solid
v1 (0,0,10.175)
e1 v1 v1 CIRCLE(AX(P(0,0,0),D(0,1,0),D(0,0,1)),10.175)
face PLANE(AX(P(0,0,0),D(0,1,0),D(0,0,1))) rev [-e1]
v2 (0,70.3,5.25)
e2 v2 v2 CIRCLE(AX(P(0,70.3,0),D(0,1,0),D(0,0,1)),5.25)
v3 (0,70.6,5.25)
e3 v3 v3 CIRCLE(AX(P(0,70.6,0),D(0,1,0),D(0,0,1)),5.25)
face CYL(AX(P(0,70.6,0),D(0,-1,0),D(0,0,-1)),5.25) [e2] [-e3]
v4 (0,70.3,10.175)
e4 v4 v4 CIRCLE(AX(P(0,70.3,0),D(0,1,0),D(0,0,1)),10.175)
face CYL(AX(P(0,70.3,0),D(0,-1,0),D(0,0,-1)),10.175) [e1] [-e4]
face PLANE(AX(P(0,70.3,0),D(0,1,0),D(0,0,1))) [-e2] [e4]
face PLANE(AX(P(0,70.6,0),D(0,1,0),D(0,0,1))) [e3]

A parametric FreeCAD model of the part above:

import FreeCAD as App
import Part
import Sketcher

doc = App.newDocument("Part")
body = doc.addObject("PartDesign::Body", "Body")

sketch1 = doc.addObject("Sketcher::SketchObject", "Sketch")
body.addObject(sketch1)
sketch1.AttachmentSupport = (doc.XZ_Plane, [""])
sketch1.MapMode = "FlatFace"
sketch1.addGeometry(Part.Circle(App.Vector(0, 0, 0), App.Vector(0, 0, 1), 10.175), False)
sketch1.addConstraint([
    Sketcher.Constraint("Coincident", 0, 3, -1, 1),
    Sketcher.Constraint("Diameter", 0, 20.35),
])
pad1 = doc.addObject("PartDesign::Pad", "Pad")
body.addObject(pad1)
pad1.Profile = sketch1
pad1.Length = 70.3
pad1.Reversed = True

sketch2 = doc.addObject("Sketcher::SketchObject", "Sketch001")
body.addObject(sketch2)
sketch2.AttachmentSupport = (doc.XZ_Plane, [""])
sketch2.MapMode = "FlatFace"
sketch2.AttachmentOffset = App.Placement(App.Vector(0, 0, -70.3), App.Rotation())
sketch2.addGeometry(Part.Circle(App.Vector(0, 0, 0), App.Vector(0, 0, 1), 5.25), False)
sketch2.addConstraint([
    Sketcher.Constraint("Coincident", 0, 3, -1, 1),
    Sketcher.Constraint("Diameter", 0, 10.5),
])
pad2 = doc.addObject("PartDesign::Pad", "Pad001")
body.addObject(pad2)
pad2.Profile = sketch2
pad2.Length = 0.3
pad2.Reversed = True

doc.recompute()
